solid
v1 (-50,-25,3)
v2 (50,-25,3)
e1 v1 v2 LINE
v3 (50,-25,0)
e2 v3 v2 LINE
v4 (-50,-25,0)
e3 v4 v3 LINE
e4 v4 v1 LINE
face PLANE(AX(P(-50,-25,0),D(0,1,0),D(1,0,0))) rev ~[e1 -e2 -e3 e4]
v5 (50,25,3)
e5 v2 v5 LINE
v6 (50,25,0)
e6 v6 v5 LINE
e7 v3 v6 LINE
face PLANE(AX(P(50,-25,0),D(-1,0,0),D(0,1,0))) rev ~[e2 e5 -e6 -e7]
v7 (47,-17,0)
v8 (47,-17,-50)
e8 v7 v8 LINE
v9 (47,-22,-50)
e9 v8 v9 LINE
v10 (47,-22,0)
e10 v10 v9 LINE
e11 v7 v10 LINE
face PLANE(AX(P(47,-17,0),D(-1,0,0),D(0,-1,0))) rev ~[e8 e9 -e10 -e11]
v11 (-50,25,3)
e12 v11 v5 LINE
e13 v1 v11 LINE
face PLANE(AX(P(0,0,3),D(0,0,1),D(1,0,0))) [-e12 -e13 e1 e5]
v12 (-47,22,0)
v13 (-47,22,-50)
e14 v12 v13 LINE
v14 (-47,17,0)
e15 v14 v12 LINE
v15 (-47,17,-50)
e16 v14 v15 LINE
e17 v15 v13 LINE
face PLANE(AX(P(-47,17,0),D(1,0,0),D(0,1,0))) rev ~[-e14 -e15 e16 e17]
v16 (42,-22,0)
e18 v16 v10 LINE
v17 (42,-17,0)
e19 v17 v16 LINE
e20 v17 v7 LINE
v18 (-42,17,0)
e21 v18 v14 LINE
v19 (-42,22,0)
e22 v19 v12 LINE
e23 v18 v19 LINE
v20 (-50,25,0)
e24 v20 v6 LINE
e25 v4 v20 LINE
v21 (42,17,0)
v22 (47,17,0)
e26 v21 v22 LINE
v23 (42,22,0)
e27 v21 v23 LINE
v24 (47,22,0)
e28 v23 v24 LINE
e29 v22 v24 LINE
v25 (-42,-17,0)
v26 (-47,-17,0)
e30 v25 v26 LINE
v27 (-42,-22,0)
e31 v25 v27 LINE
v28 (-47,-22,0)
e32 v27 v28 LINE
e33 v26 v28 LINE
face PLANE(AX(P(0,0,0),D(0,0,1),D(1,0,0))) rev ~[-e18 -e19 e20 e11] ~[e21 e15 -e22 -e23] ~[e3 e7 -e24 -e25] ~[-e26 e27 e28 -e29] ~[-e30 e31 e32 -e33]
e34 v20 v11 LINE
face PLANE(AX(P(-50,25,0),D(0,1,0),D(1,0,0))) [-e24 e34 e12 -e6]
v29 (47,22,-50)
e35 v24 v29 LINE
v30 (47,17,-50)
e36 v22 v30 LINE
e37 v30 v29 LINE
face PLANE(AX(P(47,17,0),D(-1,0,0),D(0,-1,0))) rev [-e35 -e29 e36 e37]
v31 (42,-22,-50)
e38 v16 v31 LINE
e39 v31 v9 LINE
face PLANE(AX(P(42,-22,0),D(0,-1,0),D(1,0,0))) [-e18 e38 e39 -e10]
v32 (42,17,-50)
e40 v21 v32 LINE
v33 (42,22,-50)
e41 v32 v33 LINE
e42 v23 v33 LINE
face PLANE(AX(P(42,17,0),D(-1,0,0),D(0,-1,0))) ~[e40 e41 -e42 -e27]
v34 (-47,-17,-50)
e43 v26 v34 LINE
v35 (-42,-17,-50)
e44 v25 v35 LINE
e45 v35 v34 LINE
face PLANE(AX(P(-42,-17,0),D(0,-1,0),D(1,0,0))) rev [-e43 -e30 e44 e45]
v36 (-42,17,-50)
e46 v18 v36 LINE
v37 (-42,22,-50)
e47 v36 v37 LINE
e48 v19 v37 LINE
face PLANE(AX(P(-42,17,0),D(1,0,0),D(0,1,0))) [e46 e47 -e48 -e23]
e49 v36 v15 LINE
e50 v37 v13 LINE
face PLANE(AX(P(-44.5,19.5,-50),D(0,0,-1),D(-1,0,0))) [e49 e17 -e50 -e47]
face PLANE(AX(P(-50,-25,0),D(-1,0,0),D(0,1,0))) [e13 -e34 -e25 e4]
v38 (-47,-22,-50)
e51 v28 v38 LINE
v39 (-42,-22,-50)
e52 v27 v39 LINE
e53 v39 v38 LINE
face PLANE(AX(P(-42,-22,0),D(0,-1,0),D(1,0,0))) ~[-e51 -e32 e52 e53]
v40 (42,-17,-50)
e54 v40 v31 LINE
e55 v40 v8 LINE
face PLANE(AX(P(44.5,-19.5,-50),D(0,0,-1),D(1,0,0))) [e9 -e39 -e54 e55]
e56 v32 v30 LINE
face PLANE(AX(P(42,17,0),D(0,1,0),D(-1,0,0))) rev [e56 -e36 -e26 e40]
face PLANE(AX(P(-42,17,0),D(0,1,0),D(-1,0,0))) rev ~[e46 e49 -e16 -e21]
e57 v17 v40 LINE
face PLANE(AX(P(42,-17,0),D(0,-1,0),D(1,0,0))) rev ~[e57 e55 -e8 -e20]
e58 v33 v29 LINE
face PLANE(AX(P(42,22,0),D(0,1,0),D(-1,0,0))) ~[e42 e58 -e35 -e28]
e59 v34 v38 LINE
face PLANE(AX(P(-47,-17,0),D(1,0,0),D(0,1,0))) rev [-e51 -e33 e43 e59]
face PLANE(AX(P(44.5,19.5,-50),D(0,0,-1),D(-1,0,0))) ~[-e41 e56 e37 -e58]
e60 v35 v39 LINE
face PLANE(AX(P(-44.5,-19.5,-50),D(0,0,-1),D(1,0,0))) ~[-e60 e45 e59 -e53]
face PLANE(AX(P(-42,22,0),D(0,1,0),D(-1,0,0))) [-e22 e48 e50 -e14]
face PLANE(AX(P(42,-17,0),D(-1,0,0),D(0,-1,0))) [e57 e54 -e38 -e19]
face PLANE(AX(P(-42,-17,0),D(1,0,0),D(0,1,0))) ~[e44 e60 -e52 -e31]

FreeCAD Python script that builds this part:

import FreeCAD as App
import Part
import Sketcher

V = App.Vector
Q = App.Units.Quantity


def add_polygon(sketch, points):
    """Adds a closed chain of lines whose ends are joined by coincident constraints."""
    first, n = sketch.GeometryCount, len(points)
    for a, b in zip(points, points[1:] + points[:1]):
        sketch.addGeometry(Part.LineSegment(App.Vector(*a, 0), App.Vector(*b, 0)), False)
    for i in range(n):
        sketch.addConstraint(Sketcher.Constraint("Coincident", first + i, 2, first + (i + 1) % n, 1))

doc = App.newDocument("Part")
params = doc.addObject("Spreadsheet::Sheet", "Params")
for row, (alias, value) in enumerate([
    ("sketch1_width", "100 mm"),
    ("sketch1_height", "50 mm"),
    ("pad1_length", "3 mm"),
    ("sketch2_width", "5 mm"),
    ("pad2_length", "50 mm"),
], start=1):
    params.set(f"A{row}", alias)
    params.set(f"B{row}", "=" + value)
    params.setAlias(f"B{row}", alias)

body = doc.addObject("PartDesign::Body", "Body")

sketch1 = body.newObject("Sketcher::SketchObject", "Sketch")
sketch1.AttachmentSupport = (doc.getObject("XY_Plane"), [""])
sketch1.MapMode = "FlatFace"
add_polygon(sketch1, [(-50, 25), (-50, -25), (50, -25), (50, 25)])
sketch1.addConstraint(Sketcher.Constraint("Vertical", 0))
sketch1.addConstraint(Sketcher.Constraint("Horizontal", 1))
sketch1.addConstraint(Sketcher.Constraint("Vertical", 2))
sketch1.addConstraint(Sketcher.Constraint("Horizontal", 3))
sketch1.addConstraint(Sketcher.Constraint("Symmetric", 0, 2, 2, 2, -1, 1))
sketch1.addConstraint(Sketcher.Constraint("DistanceX", 1, 1, 1, 2, Q("100 mm")))
sketch1.addConstraint(Sketcher.Constraint("DistanceY", 0, 2, 0, 1, Q("50 mm")))
sketch1.setExpression("Constraints[9]", "Params.sketch1_width")
sketch1.setExpression("Constraints[10]", "Params.sketch1_height")
pad1 = body.newObject("PartDesign::Pad", "Pad")
pad1.Profile = sketch1
pad1.setExpression("Length", "Params.pad1_length")

sketch2 = body.newObject("Sketcher::SketchObject", "Sketch001")
sketch2.AttachmentSupport = (doc.getObject("XY_Plane"), [""])
sketch2.MapMode = "FlatFace"
add_polygon(sketch2, [(42, -22), (42, -17), (47, -17), (47, -22)])
sketch2.addConstraint(Sketcher.Constraint("Vertical", 0))
sketch2.addConstraint(Sketcher.Constraint("Horizontal", 1))
sketch2.addConstraint(Sketcher.Constraint("Vertical", 2))
sketch2.addConstraint(Sketcher.Constraint("Horizontal", 3))
sketch2.addConstraint(Sketcher.Constraint("Equal", 3, 0))
sketch2.addConstraint(Sketcher.Constraint("DistanceX", 1, 1, 1, 2, Q("5 mm")))
sketch2.addConstraint(Sketcher.Constraint("DistanceX", -1, 1, 0, 2, Q("42 mm")))
sketch2.addConstraint(Sketcher.Constraint("DistanceY", 0, 2, -1, 1, Q("17 mm")))
sketch2.setExpression("Constraints[9]", "Params.sketch2_width")
pad2 = body.newObject("PartDesign::Pad", "Pad001")
pad2.Profile = sketch2
pad2.setExpression("Length", "Params.pad2_length")
pad2.Reversed = True
doc.recompute()

mirrored = body.newObject("PartDesign::Mirrored", "Mirrored")
mirrored.Originals = [pad2]
mirrored.MirrorPlane = (doc.getObject("YZ_Plane"), [""])
body.Tip = mirrored
doc.recompute()

polarpattern = body.newObject("PartDesign::PolarPattern", "PolarPattern")
polarpattern.Originals = [pad2]
polarpattern.Axis = (doc.getObject("Z_Axis"), [""])
polarpattern.Angle = 360
polarpattern.Occurrences = 2
body.Tip = polarpattern
doc.recompute()

mirrored2 = body.newObject("PartDesign::Mirrored", "Mirrored001")
mirrored2.Originals = [pad2]
mirrored2.MirrorPlane = (doc.getObject("XZ_Plane"), [""])
body.Tip = mirrored2

doc.recompute()
